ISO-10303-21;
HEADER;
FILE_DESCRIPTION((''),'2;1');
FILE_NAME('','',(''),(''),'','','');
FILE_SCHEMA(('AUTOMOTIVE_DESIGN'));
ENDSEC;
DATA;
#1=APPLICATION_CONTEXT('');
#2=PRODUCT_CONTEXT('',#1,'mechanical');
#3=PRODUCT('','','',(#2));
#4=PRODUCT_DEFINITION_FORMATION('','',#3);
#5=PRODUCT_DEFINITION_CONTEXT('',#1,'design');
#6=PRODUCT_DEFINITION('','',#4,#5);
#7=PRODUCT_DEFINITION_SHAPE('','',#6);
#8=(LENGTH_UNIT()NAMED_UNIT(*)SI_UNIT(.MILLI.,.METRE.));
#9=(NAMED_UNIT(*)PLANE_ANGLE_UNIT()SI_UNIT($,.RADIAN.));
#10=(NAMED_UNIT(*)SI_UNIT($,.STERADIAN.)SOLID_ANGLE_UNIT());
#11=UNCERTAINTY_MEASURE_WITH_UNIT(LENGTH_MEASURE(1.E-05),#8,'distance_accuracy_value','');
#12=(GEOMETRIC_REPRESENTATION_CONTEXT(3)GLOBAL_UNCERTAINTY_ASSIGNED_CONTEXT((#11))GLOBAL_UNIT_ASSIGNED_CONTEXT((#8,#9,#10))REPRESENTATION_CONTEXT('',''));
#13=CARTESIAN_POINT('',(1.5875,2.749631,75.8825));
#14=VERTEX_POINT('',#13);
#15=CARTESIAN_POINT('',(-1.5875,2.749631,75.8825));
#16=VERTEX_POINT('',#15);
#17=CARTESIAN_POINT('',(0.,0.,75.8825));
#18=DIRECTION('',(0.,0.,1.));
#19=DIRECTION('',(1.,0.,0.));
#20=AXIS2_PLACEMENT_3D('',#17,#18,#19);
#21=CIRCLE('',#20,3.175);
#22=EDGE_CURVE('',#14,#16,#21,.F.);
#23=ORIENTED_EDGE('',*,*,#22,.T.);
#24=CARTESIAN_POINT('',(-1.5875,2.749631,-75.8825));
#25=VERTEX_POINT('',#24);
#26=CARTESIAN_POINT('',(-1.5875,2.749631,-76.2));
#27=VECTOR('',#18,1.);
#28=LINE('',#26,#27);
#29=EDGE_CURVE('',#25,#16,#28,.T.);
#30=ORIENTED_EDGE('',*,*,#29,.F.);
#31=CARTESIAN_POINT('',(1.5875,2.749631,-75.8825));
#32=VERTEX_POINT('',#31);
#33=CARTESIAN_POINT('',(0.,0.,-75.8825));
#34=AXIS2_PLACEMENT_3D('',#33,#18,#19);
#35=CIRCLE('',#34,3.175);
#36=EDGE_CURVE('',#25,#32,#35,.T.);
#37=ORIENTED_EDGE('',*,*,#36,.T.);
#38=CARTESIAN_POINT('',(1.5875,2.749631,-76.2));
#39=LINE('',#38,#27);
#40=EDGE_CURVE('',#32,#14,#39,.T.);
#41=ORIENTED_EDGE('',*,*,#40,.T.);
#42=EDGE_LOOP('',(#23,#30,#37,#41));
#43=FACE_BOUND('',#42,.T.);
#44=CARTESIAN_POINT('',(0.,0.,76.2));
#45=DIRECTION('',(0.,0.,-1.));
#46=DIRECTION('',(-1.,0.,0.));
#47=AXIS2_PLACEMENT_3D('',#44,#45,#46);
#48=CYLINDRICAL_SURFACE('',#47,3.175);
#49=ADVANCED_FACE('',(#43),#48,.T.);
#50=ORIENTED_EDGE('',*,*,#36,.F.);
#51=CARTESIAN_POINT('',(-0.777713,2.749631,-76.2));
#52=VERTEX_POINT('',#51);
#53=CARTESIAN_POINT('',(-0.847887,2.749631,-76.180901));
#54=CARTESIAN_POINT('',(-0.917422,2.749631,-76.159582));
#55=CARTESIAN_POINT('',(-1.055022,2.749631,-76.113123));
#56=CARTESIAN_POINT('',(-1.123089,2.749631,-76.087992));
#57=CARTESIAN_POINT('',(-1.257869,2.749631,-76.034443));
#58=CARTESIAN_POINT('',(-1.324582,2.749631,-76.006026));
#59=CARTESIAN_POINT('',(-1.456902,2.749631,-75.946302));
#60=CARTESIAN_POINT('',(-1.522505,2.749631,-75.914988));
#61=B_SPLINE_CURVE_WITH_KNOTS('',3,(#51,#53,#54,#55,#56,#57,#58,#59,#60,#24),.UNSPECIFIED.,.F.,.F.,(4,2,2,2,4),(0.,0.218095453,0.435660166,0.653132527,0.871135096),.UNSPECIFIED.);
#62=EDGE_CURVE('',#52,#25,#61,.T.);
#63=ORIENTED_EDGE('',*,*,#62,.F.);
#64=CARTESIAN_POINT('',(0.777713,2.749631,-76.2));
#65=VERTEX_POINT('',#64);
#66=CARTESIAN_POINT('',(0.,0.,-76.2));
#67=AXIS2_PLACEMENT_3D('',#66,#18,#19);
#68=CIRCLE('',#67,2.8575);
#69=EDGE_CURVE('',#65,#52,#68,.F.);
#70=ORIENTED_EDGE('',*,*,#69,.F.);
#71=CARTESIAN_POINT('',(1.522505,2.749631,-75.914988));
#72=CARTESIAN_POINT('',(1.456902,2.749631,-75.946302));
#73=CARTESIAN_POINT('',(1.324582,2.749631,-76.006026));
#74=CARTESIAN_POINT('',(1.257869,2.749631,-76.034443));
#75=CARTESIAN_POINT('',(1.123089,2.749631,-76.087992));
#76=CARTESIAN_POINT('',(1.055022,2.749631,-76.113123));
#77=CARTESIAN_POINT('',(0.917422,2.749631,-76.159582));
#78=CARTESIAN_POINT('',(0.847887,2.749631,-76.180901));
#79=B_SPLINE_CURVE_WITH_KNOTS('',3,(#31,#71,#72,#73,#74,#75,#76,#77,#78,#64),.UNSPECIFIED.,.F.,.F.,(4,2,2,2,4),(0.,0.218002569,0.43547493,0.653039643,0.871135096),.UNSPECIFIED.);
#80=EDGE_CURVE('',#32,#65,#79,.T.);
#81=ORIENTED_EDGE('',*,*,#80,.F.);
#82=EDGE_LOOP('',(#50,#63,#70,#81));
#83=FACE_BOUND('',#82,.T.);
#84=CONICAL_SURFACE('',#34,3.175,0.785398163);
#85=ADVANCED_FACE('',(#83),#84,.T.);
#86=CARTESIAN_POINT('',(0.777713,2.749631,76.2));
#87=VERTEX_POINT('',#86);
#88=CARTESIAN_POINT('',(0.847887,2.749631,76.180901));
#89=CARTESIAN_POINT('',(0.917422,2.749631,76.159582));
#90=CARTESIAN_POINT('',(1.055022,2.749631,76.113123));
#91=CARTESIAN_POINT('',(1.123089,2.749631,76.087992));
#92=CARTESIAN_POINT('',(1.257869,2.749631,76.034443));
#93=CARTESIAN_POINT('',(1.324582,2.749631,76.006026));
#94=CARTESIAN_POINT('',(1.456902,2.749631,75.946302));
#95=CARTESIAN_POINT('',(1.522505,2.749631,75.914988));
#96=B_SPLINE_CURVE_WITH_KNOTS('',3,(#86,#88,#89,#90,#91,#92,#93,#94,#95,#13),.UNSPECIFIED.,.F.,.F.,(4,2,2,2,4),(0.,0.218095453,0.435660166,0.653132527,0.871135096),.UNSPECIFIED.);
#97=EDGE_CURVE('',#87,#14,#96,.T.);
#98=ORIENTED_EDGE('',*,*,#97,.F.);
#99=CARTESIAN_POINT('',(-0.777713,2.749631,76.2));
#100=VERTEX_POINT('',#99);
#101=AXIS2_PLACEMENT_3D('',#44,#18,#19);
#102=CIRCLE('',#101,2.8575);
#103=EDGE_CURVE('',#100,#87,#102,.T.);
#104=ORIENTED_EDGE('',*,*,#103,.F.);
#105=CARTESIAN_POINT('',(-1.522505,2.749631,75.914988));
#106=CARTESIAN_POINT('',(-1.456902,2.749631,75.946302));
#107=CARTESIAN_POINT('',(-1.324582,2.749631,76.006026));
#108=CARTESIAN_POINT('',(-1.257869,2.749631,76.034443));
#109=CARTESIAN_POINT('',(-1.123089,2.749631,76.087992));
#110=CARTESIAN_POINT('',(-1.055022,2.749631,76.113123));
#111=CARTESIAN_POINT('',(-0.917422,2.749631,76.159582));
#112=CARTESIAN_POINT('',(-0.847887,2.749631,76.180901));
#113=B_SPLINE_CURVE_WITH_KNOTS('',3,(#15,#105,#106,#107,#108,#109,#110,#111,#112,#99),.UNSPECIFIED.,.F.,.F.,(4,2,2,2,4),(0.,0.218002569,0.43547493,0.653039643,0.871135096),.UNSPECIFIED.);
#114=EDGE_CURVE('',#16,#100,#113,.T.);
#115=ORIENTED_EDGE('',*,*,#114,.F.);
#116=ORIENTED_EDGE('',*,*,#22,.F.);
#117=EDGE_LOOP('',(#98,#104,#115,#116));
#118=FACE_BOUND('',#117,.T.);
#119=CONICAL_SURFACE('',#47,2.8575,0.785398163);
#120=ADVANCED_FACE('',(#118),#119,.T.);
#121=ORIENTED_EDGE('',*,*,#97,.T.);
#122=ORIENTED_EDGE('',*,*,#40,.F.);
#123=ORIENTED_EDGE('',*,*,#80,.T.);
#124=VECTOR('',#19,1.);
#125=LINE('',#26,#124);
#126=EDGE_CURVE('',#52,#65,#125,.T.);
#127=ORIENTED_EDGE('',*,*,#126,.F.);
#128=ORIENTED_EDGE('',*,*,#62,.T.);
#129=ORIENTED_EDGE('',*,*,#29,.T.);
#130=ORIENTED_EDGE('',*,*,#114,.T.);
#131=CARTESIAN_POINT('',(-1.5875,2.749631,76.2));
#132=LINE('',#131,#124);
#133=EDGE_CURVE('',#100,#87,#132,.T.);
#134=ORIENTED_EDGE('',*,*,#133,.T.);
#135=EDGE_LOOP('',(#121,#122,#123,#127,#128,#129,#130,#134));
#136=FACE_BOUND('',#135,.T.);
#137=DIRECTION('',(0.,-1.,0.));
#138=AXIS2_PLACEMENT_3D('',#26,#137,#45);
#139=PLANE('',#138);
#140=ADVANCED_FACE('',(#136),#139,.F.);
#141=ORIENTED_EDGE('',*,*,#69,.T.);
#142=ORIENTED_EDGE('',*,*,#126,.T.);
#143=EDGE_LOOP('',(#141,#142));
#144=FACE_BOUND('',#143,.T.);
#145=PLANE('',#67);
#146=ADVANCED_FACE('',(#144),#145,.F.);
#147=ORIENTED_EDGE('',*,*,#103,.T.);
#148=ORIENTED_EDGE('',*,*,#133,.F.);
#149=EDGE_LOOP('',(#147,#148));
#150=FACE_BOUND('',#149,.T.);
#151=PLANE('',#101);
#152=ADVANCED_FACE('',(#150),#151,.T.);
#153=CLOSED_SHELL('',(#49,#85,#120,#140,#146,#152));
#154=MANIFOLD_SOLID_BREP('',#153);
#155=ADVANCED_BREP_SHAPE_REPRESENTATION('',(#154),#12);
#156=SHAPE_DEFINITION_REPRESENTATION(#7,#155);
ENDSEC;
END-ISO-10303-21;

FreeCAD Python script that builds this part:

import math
import FreeCAD as App
import Part
import Sketcher
Q = App.Units.Quantity


def edges_at(feature, points):
    """Names of the edges that pass closest to the given points."""
    edges = feature.Shape.Edges
    near = lambda p: min(range(len(edges)), key=lambda i: edges[i].distToShape(Part.Vertex(*p))[0])
    return sorted({f"Edge{near(p) + 1}" for p in points})

doc = App.newDocument("Part")
body = doc.addObject("PartDesign::Body", "Body")

# Sketch on XY plane
sketch1 = body.newObject("Sketcher::SketchObject", "Sketch")
sketch1.AttachmentSupport = (doc.getObject("XY_Plane"), [""])
sketch1.MapMode = "FlatFace"
sketch1.addGeometry(Part.Circle(App.Vector(0, 0, 0), App.Vector(0, 0, 1), 3.2), False)
sketch1.addConstraint([
    Sketcher.Constraint("Coincident", 0, 3, -1, 1),
    Sketcher.Constraint("Diameter", 0, Q("0.25 in")),
])
pad1 = body.newObject("PartDesign::Pad", "Pad")
pad1.Profile = sketch1
pad1.Type = "TwoLengths"
pad1.Length = Q("3 in")
pad1.Length2 = Q("3 in")

# Sketch on XY plane
sketch2 = body.newObject("Sketcher::SketchObject", "Sketch001")
sketch2.AttachmentSupport = (doc.getObject("XY_Plane"), [""])
sketch2.MapMode = "FlatFace"
sketch2.addGeometry([
    Part.LineSegment(App.Vector(-1.6, 2.7, 0), App.Vector(1.6, 2.7, 0)),
    Part.ArcOfCircle(Part.Circle(App.Vector(0, 0, 0), App.Vector(0, 0, 1), 3.2), math.radians(60), math.radians(120)),
], False)
sketch2.addConstraint([
    Sketcher.Constraint("Coincident", 0, 1, 1, 2),
    Sketcher.Constraint("Coincident", 1, 1, 0, 2),
    Sketcher.Constraint("Horizontal", 0),
    Sketcher.Constraint("Coincident", 1, 3, -1, 1),
    Sketcher.Constraint("Radius", 1, Q("0.125 in")),
    Sketcher.Constraint("DistanceX", 0, 1, 0, 2, Q("0.125 in")),
])
pocket1 = body.newObject("PartDesign::Pocket", "Pocket")
pocket1.Profile = sketch2
pocket1.Type = "ThroughAll"
pocket1.Midplane = True
doc.recompute()

chamfer = body.newObject("PartDesign::Chamfer", "Chamfer")
chamfer.Base = (pocket1, edges_at(pocket1, [(0, -3.175, -76.2), (0, -3.175, 76.2)]))
chamfer.Size = Q("0.0125 in")

doc.recompute()
